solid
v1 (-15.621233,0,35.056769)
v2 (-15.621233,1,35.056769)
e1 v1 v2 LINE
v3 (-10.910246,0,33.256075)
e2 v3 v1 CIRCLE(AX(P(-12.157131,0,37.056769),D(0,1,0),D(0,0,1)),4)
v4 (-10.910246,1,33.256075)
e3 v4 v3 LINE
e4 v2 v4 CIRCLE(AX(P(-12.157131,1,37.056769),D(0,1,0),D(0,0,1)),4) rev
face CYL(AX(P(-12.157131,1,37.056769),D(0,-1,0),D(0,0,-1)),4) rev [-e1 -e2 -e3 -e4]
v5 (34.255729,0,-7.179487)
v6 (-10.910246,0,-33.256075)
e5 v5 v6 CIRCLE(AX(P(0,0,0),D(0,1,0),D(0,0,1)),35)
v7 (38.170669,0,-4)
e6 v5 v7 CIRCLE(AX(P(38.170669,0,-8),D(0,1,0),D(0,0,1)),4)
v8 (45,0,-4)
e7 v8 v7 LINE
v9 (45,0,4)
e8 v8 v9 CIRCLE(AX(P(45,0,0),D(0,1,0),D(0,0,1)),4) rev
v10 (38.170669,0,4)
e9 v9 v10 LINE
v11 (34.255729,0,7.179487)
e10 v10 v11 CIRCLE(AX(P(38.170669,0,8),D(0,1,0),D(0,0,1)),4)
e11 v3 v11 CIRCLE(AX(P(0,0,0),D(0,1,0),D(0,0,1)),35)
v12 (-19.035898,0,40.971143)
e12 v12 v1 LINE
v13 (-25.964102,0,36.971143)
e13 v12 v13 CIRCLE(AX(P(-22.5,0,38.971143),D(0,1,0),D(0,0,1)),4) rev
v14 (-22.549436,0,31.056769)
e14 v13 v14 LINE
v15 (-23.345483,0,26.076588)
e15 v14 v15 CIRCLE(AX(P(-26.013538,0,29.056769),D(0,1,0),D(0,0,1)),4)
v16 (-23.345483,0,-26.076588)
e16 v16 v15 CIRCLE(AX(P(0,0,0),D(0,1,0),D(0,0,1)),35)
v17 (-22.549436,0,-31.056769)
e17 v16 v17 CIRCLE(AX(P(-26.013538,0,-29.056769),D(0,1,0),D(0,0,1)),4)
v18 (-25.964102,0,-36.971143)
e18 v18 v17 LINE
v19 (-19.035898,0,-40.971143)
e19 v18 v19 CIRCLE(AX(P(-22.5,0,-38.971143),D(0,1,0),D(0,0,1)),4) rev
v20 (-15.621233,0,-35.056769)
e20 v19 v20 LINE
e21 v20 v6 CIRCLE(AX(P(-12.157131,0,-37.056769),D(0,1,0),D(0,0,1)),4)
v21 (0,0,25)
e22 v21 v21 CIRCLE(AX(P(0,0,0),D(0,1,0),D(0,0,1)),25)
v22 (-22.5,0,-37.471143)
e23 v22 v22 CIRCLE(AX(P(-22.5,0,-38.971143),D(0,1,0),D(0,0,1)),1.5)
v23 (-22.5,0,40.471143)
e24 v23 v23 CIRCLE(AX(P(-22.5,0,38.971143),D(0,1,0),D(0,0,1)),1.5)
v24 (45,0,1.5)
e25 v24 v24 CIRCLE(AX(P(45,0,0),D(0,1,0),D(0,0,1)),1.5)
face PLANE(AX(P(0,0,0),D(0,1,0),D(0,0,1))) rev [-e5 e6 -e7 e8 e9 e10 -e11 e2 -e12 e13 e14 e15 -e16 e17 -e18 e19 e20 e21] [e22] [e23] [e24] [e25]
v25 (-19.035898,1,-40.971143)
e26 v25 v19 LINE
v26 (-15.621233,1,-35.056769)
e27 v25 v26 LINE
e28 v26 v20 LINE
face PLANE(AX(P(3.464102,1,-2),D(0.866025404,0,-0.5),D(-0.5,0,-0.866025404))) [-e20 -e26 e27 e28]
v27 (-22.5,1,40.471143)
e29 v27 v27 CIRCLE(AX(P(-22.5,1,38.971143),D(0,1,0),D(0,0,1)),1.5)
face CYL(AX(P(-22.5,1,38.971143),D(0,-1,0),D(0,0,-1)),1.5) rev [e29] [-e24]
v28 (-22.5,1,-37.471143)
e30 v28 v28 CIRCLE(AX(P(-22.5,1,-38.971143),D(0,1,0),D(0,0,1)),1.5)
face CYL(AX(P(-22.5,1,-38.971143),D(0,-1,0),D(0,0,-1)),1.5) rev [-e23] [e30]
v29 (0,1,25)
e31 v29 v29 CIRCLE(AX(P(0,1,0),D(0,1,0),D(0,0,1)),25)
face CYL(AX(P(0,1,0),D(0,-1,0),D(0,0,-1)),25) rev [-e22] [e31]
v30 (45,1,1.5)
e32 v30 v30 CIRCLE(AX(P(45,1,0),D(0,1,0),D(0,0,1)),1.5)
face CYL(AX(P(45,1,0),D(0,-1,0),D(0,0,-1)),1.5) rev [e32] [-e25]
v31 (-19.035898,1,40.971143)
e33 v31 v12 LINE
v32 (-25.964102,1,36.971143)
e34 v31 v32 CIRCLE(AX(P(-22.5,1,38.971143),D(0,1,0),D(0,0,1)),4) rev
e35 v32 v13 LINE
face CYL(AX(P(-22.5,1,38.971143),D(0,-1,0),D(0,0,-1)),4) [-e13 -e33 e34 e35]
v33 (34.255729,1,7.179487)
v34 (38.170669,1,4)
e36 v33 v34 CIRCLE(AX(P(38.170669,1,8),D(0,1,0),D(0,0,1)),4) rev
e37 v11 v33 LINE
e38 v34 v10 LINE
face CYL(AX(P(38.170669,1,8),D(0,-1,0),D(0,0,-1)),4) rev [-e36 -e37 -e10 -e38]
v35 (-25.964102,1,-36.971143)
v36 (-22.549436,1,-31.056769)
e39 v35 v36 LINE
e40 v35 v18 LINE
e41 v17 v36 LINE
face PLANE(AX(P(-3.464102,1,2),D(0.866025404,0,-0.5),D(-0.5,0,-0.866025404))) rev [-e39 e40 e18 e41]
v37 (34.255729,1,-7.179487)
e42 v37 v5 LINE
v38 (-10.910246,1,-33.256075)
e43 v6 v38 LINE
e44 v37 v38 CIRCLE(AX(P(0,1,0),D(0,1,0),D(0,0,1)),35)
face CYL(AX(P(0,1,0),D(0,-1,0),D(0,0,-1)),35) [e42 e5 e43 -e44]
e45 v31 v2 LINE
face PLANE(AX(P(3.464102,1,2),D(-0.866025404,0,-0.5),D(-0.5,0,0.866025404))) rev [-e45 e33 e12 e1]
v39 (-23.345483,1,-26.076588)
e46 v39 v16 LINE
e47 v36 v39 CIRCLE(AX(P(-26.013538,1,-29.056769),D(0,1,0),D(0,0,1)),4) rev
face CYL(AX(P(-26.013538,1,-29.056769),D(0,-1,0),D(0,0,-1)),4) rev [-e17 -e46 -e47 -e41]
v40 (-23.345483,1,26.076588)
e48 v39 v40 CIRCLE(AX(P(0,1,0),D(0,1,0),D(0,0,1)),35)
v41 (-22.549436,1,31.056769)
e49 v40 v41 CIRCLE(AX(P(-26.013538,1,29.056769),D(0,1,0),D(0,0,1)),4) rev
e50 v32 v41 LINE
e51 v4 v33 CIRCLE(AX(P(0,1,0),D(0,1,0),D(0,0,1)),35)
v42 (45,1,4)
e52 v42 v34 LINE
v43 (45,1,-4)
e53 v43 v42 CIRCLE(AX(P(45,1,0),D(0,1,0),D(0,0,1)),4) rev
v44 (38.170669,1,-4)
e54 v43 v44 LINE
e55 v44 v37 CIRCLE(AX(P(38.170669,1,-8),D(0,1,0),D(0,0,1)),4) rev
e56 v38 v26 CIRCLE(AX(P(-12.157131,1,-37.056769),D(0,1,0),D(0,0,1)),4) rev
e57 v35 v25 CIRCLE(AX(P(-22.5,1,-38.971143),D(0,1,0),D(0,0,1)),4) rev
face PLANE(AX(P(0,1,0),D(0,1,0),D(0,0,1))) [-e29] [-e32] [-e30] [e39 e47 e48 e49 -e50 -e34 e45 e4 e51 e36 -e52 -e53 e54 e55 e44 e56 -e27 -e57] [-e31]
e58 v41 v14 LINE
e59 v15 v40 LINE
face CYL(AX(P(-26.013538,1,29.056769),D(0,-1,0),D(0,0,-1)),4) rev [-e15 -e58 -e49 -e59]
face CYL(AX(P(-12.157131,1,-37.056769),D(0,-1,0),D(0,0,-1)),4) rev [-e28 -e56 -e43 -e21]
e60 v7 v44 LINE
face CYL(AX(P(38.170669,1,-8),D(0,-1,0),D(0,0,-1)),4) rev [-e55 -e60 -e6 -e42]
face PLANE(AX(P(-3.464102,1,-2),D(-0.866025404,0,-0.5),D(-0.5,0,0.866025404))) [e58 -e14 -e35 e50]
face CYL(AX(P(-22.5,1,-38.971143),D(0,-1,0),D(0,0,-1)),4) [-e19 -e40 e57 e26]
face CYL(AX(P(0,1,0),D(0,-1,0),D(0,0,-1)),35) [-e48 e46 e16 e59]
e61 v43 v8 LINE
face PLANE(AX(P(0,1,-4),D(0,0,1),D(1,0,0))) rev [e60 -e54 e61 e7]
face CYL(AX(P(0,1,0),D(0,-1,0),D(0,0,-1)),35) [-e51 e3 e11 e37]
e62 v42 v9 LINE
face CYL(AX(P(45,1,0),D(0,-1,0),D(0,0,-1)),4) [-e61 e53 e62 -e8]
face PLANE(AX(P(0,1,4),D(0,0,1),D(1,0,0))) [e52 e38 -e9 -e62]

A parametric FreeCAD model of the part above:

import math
import FreeCAD as App
import Part
import Sketcher

V = App.Vector
Q = App.Units.Quantity


def edges_at(feature, points):
    """Names of the edges that pass closest to the given points."""
    edges = feature.Shape.Edges
    near = lambda p: min(range(len(edges)), key=lambda i: edges[i].distToShape(Part.Vertex(*p))[0])
    return sorted({f"Edge{near(p) + 1}" for p in points})

doc = App.newDocument("Part")
params = doc.addObject("Spreadsheet::Sheet", "Params")
for row, (alias, value) in enumerate([
    ("sketch1_diameter", "50 mm"),
    ("sketch1_diameter2", "3 mm"),
    ("sketch1_radius", "35 mm"),
    ("sketch1_radius2", "4 mm"),
    ("pad1_length", "1 mm"),
    ("fillet_radius", "4 mm"),
], start=1):
    params.set(f"A{row}", alias)
    params.set(f"B{row}", "=" + value)
    params.setAlias(f"B{row}", alias)

body = doc.addObject("PartDesign::Body", "Body")

# Sketch on XZ plane
sketch1 = body.newObject("Sketcher::SketchObject", "Sketch")
sketch1.AttachmentSupport = (doc.getObject("XZ_Plane"), [""])
sketch1.MapMode = "FlatFace"
sketch1.addGeometry(Part.ArcOfCircle(Part.Circle(V(0, 0, 0), V(0, 0, 1), 35), math.radians(-113.437572), math.radians(-6.562428)), False)
sketch1.addGeometry(Part.LineSegment(V(-13.921237, -32.11229, 0), V(-19.035586, -40.970602, 0)), False)
sketch1.addGeometry(Part.LineSegment(V(-19.035586, -40.970602, 0), V(-19.035898, -40.971143, 0)), False)
sketch1.addGeometry(Part.ArcOfCircle(Part.Circle(V(-22.5, -38.971143, 0), V(0, 0, 1), 4), math.radians(150), math.radians(330)), False)
sketch1.addGeometry(Part.LineSegment(V(-25.964102, -36.971143, 0), V(-20.84944, -28.11229, 0)), False)
sketch1.addGeometry(Part.ArcOfCircle(Part.Circle(V(0, 0, 0), V(0, 0, 1), 35), math.radians(126.562428), math.radians(233.437572)), False)
sketch1.addGeometry(Part.LineSegment(V(-20.84944, 28.11229, 0), V(-25.963789, 36.970602, 0)), False)
sketch1.addGeometry(Part.LineSegment(V(-25.963789, 36.970602, 0), V(-25.964102, 36.971143, 0)), False)
sketch1.addGeometry(Part.ArcOfCircle(Part.Circle(V(-22.5, 38.971143, 0), V(0, 0, 1), 4), math.radians(30), math.radians(210)), False)
sketch1.addGeometry(Part.LineSegment(V(-19.035898, 40.971143, 0), V(-13.921237, 32.11229, 0)), False)
sketch1.addGeometry(Part.ArcOfCircle(Part.Circle(V(0, 0, 0), V(0, 0, 1), 35), math.radians(6.562428), math.radians(113.437572)), False)
sketch1.addGeometry(Part.LineSegment(V(34.770677, 4, 0), V(45, 4, 0)), False)
sketch1.addGeometry(Part.ArcOfCircle(Part.Circle(V(45, 0, 0), V(0, 0, 1), 4), math.radians(-90), math.radians(90)), False)
sketch1.addGeometry(Part.LineSegment(V(45, -4, 0), V(34.770677, -4, 0)), False)
sketch1.addGeometry(Part.Circle(V(0, 0, 0), V(0, 0, 1), 25), False)
sketch1.addGeometry(Part.Circle(V(45, 0, 0), V(0, 0, 1), 1.5), False)
sketch1.addGeometry(Part.Circle(V(-22.5, -38.971143, 0), V(0, 0, 1), 1.5), False)
sketch1.addGeometry(Part.Circle(V(-22.5, 38.971143, 0), V(0, 0, 1), 1.5), False)
sketch1.addConstraint(Sketcher.Constraint("Coincident", 0, 1, 1, 1))
sketch1.addConstraint(Sketcher.Constraint("Coincident", 1, 2, 2, 1))
sketch1.addConstraint(Sketcher.Constraint("Tangent", 2, 2, 3, 2))
sketch1.addConstraint(Sketcher.Constraint("Tangent", 3, 1, 4, 1))
sketch1.addConstraint(Sketcher.Constraint("Coincident", 4, 2, 5, 2))
sketch1.addConstraint(Sketcher.Constraint("Coincident", 5, 1, 6, 1))
sketch1.addConstraint(Sketcher.Constraint("Coincident", 6, 2, 7, 1))
sketch1.addConstraint(Sketcher.Constraint("Tangent", 7, 2, 8, 2))
sketch1.addConstraint(Sketcher.Constraint("Tangent", 8, 1, 9, 1))
sketch1.addConstraint(Sketcher.Constraint("Coincident", 9, 2, 10, 2))
sketch1.addConstraint(Sketcher.Constraint("Coincident", 10, 1, 11, 1))
sketch1.addConstraint(Sketcher.Constraint("Tangent", 11, 2, 12, 2))
sketch1.addConstraint(Sketcher.Constraint("Tangent", 12, 1, 13, 1))
sketch1.addConstraint(Sketcher.Constraint("Coincident", 13, 2, 0, 2))
sketch1.addConstraint(Sketcher.Constraint("Horizontal", 11))
sketch1.addConstraint(Sketcher.Constraint("Horizontal", 13))
sketch1.addConstraint(Sketcher.Constraint("Coincident", 0, 3, -1, 1))
sketch1.addConstraint(Sketcher.Constraint("Coincident", 5, 3, -1, 1))
sketch1.addConstraint(Sketcher.Constraint("Coincident", 10, 3, -1, 1))
sketch1.addConstraint(Sketcher.Constraint("Coincident", 14, 3, -1, 1))
sketch1.addConstraint(Sketcher.Constraint("Coincident", 15, 3, 12, 3))
sketch1.addConstraint(Sketcher.Constraint("Coincident", 16, 3, 3, 3))
sketch1.addConstraint(Sketcher.Constraint("Coincident", 17, 3, 8, 3))
sketch1.addConstraint(Sketcher.Constraint("Equal", 0, 5))
sketch1.addConstraint(Sketcher.Constraint("Equal", 3, 8))
sketch1.addConstraint(Sketcher.Constraint("Equal", 5, 10))
sketch1.addConstraint(Sketcher.Constraint("Equal", 8, 12))
sketch1.addConstraint(Sketcher.Constraint("Equal", 15, 16))
sketch1.addConstraint(Sketcher.Constraint("Equal", 16, 17))
sketch1.addConstraint(Sketcher.Constraint("Symmetric", 3, 3, 8, 3, -1))
sketch1.addConstraint(Sketcher.Constraint("PointOnObject", 12, 3, -1))
sketch1.addConstraint(Sketcher.Constraint("Parallel", 1, 4))
sketch1.addConstraint(Sketcher.Constraint("Parallel", 6, 9))
sketch1.addConstraint(Sketcher.Constraint("Vertical", 4, 2, 5, 1))
sketch1.addConstraint(Sketcher.Constraint("Vertical", 3, 1, 7, 2))
sketch1.addConstraint(Sketcher.Constraint("Vertical", 2, 2, 8, 1))
sketch1.addConstraint(Sketcher.Constraint("Equal", 1, 6))
sketch1.addConstraint(Sketcher.Constraint("Equal", 2, 7))
sketch1.addConstraint(Sketcher.Constraint("Diameter", 14, Q("50 mm")))
sketch1.addConstraint(Sketcher.Constraint("Diameter", 15, Q("3 mm")))
sketch1.addConstraint(Sketcher.Constraint("Radius", 0, Q("35 mm")))
sketch1.addConstraint(Sketcher.Constraint("Radius", 3, Q("4 mm")))
sketch1.addConstraint(Sketcher.Constraint("Angle", 1, Q("-120 deg")))
sketch1.addConstraint(Sketcher.Constraint("DistanceX", -1, 1, 12, 3, Q("45 mm")))
sketch1.addConstraint(Sketcher.Constraint("DistanceX", 3, 3, -1, 1, Q("22.5 mm")))
sketch1.addConstraint(Sketcher.Constraint("Distance", 1, Q("10.228698 mm")))
sketch1.setExpression("Constraints[38]", "Params.sketch1_diameter")
sketch1.setExpression("Constraints[39]", "Params.sketch1_diameter2")
sketch1.setExpression("Constraints[40]", "Params.sketch1_radius")
sketch1.setExpression("Constraints[41]", "Params.sketch1_radius2")
pad1 = body.newObject("PartDesign::Pad", "Pad")
pad1.Profile = sketch1
pad1.setExpression("Length", "Params.pad1_length")
pad1.Reversed = True
doc.recompute()

fillet = body.newObject("PartDesign::Fillet", "Fillet")
fillet.Base = (pad1, edges_at(pad1, [
    (-13.921, 0.5, 32.112),
    (-20.849, 0.5, 28.112),
    (-20.849, 0.5, -28.112),
    (-13.921, 0.5, -32.112),
    (34.771, 0.5, -4),
    (34.771, 0.5, 4),
]))
fillet.setExpression("Radius", "Params.fillet_radius")

doc.recompute()
